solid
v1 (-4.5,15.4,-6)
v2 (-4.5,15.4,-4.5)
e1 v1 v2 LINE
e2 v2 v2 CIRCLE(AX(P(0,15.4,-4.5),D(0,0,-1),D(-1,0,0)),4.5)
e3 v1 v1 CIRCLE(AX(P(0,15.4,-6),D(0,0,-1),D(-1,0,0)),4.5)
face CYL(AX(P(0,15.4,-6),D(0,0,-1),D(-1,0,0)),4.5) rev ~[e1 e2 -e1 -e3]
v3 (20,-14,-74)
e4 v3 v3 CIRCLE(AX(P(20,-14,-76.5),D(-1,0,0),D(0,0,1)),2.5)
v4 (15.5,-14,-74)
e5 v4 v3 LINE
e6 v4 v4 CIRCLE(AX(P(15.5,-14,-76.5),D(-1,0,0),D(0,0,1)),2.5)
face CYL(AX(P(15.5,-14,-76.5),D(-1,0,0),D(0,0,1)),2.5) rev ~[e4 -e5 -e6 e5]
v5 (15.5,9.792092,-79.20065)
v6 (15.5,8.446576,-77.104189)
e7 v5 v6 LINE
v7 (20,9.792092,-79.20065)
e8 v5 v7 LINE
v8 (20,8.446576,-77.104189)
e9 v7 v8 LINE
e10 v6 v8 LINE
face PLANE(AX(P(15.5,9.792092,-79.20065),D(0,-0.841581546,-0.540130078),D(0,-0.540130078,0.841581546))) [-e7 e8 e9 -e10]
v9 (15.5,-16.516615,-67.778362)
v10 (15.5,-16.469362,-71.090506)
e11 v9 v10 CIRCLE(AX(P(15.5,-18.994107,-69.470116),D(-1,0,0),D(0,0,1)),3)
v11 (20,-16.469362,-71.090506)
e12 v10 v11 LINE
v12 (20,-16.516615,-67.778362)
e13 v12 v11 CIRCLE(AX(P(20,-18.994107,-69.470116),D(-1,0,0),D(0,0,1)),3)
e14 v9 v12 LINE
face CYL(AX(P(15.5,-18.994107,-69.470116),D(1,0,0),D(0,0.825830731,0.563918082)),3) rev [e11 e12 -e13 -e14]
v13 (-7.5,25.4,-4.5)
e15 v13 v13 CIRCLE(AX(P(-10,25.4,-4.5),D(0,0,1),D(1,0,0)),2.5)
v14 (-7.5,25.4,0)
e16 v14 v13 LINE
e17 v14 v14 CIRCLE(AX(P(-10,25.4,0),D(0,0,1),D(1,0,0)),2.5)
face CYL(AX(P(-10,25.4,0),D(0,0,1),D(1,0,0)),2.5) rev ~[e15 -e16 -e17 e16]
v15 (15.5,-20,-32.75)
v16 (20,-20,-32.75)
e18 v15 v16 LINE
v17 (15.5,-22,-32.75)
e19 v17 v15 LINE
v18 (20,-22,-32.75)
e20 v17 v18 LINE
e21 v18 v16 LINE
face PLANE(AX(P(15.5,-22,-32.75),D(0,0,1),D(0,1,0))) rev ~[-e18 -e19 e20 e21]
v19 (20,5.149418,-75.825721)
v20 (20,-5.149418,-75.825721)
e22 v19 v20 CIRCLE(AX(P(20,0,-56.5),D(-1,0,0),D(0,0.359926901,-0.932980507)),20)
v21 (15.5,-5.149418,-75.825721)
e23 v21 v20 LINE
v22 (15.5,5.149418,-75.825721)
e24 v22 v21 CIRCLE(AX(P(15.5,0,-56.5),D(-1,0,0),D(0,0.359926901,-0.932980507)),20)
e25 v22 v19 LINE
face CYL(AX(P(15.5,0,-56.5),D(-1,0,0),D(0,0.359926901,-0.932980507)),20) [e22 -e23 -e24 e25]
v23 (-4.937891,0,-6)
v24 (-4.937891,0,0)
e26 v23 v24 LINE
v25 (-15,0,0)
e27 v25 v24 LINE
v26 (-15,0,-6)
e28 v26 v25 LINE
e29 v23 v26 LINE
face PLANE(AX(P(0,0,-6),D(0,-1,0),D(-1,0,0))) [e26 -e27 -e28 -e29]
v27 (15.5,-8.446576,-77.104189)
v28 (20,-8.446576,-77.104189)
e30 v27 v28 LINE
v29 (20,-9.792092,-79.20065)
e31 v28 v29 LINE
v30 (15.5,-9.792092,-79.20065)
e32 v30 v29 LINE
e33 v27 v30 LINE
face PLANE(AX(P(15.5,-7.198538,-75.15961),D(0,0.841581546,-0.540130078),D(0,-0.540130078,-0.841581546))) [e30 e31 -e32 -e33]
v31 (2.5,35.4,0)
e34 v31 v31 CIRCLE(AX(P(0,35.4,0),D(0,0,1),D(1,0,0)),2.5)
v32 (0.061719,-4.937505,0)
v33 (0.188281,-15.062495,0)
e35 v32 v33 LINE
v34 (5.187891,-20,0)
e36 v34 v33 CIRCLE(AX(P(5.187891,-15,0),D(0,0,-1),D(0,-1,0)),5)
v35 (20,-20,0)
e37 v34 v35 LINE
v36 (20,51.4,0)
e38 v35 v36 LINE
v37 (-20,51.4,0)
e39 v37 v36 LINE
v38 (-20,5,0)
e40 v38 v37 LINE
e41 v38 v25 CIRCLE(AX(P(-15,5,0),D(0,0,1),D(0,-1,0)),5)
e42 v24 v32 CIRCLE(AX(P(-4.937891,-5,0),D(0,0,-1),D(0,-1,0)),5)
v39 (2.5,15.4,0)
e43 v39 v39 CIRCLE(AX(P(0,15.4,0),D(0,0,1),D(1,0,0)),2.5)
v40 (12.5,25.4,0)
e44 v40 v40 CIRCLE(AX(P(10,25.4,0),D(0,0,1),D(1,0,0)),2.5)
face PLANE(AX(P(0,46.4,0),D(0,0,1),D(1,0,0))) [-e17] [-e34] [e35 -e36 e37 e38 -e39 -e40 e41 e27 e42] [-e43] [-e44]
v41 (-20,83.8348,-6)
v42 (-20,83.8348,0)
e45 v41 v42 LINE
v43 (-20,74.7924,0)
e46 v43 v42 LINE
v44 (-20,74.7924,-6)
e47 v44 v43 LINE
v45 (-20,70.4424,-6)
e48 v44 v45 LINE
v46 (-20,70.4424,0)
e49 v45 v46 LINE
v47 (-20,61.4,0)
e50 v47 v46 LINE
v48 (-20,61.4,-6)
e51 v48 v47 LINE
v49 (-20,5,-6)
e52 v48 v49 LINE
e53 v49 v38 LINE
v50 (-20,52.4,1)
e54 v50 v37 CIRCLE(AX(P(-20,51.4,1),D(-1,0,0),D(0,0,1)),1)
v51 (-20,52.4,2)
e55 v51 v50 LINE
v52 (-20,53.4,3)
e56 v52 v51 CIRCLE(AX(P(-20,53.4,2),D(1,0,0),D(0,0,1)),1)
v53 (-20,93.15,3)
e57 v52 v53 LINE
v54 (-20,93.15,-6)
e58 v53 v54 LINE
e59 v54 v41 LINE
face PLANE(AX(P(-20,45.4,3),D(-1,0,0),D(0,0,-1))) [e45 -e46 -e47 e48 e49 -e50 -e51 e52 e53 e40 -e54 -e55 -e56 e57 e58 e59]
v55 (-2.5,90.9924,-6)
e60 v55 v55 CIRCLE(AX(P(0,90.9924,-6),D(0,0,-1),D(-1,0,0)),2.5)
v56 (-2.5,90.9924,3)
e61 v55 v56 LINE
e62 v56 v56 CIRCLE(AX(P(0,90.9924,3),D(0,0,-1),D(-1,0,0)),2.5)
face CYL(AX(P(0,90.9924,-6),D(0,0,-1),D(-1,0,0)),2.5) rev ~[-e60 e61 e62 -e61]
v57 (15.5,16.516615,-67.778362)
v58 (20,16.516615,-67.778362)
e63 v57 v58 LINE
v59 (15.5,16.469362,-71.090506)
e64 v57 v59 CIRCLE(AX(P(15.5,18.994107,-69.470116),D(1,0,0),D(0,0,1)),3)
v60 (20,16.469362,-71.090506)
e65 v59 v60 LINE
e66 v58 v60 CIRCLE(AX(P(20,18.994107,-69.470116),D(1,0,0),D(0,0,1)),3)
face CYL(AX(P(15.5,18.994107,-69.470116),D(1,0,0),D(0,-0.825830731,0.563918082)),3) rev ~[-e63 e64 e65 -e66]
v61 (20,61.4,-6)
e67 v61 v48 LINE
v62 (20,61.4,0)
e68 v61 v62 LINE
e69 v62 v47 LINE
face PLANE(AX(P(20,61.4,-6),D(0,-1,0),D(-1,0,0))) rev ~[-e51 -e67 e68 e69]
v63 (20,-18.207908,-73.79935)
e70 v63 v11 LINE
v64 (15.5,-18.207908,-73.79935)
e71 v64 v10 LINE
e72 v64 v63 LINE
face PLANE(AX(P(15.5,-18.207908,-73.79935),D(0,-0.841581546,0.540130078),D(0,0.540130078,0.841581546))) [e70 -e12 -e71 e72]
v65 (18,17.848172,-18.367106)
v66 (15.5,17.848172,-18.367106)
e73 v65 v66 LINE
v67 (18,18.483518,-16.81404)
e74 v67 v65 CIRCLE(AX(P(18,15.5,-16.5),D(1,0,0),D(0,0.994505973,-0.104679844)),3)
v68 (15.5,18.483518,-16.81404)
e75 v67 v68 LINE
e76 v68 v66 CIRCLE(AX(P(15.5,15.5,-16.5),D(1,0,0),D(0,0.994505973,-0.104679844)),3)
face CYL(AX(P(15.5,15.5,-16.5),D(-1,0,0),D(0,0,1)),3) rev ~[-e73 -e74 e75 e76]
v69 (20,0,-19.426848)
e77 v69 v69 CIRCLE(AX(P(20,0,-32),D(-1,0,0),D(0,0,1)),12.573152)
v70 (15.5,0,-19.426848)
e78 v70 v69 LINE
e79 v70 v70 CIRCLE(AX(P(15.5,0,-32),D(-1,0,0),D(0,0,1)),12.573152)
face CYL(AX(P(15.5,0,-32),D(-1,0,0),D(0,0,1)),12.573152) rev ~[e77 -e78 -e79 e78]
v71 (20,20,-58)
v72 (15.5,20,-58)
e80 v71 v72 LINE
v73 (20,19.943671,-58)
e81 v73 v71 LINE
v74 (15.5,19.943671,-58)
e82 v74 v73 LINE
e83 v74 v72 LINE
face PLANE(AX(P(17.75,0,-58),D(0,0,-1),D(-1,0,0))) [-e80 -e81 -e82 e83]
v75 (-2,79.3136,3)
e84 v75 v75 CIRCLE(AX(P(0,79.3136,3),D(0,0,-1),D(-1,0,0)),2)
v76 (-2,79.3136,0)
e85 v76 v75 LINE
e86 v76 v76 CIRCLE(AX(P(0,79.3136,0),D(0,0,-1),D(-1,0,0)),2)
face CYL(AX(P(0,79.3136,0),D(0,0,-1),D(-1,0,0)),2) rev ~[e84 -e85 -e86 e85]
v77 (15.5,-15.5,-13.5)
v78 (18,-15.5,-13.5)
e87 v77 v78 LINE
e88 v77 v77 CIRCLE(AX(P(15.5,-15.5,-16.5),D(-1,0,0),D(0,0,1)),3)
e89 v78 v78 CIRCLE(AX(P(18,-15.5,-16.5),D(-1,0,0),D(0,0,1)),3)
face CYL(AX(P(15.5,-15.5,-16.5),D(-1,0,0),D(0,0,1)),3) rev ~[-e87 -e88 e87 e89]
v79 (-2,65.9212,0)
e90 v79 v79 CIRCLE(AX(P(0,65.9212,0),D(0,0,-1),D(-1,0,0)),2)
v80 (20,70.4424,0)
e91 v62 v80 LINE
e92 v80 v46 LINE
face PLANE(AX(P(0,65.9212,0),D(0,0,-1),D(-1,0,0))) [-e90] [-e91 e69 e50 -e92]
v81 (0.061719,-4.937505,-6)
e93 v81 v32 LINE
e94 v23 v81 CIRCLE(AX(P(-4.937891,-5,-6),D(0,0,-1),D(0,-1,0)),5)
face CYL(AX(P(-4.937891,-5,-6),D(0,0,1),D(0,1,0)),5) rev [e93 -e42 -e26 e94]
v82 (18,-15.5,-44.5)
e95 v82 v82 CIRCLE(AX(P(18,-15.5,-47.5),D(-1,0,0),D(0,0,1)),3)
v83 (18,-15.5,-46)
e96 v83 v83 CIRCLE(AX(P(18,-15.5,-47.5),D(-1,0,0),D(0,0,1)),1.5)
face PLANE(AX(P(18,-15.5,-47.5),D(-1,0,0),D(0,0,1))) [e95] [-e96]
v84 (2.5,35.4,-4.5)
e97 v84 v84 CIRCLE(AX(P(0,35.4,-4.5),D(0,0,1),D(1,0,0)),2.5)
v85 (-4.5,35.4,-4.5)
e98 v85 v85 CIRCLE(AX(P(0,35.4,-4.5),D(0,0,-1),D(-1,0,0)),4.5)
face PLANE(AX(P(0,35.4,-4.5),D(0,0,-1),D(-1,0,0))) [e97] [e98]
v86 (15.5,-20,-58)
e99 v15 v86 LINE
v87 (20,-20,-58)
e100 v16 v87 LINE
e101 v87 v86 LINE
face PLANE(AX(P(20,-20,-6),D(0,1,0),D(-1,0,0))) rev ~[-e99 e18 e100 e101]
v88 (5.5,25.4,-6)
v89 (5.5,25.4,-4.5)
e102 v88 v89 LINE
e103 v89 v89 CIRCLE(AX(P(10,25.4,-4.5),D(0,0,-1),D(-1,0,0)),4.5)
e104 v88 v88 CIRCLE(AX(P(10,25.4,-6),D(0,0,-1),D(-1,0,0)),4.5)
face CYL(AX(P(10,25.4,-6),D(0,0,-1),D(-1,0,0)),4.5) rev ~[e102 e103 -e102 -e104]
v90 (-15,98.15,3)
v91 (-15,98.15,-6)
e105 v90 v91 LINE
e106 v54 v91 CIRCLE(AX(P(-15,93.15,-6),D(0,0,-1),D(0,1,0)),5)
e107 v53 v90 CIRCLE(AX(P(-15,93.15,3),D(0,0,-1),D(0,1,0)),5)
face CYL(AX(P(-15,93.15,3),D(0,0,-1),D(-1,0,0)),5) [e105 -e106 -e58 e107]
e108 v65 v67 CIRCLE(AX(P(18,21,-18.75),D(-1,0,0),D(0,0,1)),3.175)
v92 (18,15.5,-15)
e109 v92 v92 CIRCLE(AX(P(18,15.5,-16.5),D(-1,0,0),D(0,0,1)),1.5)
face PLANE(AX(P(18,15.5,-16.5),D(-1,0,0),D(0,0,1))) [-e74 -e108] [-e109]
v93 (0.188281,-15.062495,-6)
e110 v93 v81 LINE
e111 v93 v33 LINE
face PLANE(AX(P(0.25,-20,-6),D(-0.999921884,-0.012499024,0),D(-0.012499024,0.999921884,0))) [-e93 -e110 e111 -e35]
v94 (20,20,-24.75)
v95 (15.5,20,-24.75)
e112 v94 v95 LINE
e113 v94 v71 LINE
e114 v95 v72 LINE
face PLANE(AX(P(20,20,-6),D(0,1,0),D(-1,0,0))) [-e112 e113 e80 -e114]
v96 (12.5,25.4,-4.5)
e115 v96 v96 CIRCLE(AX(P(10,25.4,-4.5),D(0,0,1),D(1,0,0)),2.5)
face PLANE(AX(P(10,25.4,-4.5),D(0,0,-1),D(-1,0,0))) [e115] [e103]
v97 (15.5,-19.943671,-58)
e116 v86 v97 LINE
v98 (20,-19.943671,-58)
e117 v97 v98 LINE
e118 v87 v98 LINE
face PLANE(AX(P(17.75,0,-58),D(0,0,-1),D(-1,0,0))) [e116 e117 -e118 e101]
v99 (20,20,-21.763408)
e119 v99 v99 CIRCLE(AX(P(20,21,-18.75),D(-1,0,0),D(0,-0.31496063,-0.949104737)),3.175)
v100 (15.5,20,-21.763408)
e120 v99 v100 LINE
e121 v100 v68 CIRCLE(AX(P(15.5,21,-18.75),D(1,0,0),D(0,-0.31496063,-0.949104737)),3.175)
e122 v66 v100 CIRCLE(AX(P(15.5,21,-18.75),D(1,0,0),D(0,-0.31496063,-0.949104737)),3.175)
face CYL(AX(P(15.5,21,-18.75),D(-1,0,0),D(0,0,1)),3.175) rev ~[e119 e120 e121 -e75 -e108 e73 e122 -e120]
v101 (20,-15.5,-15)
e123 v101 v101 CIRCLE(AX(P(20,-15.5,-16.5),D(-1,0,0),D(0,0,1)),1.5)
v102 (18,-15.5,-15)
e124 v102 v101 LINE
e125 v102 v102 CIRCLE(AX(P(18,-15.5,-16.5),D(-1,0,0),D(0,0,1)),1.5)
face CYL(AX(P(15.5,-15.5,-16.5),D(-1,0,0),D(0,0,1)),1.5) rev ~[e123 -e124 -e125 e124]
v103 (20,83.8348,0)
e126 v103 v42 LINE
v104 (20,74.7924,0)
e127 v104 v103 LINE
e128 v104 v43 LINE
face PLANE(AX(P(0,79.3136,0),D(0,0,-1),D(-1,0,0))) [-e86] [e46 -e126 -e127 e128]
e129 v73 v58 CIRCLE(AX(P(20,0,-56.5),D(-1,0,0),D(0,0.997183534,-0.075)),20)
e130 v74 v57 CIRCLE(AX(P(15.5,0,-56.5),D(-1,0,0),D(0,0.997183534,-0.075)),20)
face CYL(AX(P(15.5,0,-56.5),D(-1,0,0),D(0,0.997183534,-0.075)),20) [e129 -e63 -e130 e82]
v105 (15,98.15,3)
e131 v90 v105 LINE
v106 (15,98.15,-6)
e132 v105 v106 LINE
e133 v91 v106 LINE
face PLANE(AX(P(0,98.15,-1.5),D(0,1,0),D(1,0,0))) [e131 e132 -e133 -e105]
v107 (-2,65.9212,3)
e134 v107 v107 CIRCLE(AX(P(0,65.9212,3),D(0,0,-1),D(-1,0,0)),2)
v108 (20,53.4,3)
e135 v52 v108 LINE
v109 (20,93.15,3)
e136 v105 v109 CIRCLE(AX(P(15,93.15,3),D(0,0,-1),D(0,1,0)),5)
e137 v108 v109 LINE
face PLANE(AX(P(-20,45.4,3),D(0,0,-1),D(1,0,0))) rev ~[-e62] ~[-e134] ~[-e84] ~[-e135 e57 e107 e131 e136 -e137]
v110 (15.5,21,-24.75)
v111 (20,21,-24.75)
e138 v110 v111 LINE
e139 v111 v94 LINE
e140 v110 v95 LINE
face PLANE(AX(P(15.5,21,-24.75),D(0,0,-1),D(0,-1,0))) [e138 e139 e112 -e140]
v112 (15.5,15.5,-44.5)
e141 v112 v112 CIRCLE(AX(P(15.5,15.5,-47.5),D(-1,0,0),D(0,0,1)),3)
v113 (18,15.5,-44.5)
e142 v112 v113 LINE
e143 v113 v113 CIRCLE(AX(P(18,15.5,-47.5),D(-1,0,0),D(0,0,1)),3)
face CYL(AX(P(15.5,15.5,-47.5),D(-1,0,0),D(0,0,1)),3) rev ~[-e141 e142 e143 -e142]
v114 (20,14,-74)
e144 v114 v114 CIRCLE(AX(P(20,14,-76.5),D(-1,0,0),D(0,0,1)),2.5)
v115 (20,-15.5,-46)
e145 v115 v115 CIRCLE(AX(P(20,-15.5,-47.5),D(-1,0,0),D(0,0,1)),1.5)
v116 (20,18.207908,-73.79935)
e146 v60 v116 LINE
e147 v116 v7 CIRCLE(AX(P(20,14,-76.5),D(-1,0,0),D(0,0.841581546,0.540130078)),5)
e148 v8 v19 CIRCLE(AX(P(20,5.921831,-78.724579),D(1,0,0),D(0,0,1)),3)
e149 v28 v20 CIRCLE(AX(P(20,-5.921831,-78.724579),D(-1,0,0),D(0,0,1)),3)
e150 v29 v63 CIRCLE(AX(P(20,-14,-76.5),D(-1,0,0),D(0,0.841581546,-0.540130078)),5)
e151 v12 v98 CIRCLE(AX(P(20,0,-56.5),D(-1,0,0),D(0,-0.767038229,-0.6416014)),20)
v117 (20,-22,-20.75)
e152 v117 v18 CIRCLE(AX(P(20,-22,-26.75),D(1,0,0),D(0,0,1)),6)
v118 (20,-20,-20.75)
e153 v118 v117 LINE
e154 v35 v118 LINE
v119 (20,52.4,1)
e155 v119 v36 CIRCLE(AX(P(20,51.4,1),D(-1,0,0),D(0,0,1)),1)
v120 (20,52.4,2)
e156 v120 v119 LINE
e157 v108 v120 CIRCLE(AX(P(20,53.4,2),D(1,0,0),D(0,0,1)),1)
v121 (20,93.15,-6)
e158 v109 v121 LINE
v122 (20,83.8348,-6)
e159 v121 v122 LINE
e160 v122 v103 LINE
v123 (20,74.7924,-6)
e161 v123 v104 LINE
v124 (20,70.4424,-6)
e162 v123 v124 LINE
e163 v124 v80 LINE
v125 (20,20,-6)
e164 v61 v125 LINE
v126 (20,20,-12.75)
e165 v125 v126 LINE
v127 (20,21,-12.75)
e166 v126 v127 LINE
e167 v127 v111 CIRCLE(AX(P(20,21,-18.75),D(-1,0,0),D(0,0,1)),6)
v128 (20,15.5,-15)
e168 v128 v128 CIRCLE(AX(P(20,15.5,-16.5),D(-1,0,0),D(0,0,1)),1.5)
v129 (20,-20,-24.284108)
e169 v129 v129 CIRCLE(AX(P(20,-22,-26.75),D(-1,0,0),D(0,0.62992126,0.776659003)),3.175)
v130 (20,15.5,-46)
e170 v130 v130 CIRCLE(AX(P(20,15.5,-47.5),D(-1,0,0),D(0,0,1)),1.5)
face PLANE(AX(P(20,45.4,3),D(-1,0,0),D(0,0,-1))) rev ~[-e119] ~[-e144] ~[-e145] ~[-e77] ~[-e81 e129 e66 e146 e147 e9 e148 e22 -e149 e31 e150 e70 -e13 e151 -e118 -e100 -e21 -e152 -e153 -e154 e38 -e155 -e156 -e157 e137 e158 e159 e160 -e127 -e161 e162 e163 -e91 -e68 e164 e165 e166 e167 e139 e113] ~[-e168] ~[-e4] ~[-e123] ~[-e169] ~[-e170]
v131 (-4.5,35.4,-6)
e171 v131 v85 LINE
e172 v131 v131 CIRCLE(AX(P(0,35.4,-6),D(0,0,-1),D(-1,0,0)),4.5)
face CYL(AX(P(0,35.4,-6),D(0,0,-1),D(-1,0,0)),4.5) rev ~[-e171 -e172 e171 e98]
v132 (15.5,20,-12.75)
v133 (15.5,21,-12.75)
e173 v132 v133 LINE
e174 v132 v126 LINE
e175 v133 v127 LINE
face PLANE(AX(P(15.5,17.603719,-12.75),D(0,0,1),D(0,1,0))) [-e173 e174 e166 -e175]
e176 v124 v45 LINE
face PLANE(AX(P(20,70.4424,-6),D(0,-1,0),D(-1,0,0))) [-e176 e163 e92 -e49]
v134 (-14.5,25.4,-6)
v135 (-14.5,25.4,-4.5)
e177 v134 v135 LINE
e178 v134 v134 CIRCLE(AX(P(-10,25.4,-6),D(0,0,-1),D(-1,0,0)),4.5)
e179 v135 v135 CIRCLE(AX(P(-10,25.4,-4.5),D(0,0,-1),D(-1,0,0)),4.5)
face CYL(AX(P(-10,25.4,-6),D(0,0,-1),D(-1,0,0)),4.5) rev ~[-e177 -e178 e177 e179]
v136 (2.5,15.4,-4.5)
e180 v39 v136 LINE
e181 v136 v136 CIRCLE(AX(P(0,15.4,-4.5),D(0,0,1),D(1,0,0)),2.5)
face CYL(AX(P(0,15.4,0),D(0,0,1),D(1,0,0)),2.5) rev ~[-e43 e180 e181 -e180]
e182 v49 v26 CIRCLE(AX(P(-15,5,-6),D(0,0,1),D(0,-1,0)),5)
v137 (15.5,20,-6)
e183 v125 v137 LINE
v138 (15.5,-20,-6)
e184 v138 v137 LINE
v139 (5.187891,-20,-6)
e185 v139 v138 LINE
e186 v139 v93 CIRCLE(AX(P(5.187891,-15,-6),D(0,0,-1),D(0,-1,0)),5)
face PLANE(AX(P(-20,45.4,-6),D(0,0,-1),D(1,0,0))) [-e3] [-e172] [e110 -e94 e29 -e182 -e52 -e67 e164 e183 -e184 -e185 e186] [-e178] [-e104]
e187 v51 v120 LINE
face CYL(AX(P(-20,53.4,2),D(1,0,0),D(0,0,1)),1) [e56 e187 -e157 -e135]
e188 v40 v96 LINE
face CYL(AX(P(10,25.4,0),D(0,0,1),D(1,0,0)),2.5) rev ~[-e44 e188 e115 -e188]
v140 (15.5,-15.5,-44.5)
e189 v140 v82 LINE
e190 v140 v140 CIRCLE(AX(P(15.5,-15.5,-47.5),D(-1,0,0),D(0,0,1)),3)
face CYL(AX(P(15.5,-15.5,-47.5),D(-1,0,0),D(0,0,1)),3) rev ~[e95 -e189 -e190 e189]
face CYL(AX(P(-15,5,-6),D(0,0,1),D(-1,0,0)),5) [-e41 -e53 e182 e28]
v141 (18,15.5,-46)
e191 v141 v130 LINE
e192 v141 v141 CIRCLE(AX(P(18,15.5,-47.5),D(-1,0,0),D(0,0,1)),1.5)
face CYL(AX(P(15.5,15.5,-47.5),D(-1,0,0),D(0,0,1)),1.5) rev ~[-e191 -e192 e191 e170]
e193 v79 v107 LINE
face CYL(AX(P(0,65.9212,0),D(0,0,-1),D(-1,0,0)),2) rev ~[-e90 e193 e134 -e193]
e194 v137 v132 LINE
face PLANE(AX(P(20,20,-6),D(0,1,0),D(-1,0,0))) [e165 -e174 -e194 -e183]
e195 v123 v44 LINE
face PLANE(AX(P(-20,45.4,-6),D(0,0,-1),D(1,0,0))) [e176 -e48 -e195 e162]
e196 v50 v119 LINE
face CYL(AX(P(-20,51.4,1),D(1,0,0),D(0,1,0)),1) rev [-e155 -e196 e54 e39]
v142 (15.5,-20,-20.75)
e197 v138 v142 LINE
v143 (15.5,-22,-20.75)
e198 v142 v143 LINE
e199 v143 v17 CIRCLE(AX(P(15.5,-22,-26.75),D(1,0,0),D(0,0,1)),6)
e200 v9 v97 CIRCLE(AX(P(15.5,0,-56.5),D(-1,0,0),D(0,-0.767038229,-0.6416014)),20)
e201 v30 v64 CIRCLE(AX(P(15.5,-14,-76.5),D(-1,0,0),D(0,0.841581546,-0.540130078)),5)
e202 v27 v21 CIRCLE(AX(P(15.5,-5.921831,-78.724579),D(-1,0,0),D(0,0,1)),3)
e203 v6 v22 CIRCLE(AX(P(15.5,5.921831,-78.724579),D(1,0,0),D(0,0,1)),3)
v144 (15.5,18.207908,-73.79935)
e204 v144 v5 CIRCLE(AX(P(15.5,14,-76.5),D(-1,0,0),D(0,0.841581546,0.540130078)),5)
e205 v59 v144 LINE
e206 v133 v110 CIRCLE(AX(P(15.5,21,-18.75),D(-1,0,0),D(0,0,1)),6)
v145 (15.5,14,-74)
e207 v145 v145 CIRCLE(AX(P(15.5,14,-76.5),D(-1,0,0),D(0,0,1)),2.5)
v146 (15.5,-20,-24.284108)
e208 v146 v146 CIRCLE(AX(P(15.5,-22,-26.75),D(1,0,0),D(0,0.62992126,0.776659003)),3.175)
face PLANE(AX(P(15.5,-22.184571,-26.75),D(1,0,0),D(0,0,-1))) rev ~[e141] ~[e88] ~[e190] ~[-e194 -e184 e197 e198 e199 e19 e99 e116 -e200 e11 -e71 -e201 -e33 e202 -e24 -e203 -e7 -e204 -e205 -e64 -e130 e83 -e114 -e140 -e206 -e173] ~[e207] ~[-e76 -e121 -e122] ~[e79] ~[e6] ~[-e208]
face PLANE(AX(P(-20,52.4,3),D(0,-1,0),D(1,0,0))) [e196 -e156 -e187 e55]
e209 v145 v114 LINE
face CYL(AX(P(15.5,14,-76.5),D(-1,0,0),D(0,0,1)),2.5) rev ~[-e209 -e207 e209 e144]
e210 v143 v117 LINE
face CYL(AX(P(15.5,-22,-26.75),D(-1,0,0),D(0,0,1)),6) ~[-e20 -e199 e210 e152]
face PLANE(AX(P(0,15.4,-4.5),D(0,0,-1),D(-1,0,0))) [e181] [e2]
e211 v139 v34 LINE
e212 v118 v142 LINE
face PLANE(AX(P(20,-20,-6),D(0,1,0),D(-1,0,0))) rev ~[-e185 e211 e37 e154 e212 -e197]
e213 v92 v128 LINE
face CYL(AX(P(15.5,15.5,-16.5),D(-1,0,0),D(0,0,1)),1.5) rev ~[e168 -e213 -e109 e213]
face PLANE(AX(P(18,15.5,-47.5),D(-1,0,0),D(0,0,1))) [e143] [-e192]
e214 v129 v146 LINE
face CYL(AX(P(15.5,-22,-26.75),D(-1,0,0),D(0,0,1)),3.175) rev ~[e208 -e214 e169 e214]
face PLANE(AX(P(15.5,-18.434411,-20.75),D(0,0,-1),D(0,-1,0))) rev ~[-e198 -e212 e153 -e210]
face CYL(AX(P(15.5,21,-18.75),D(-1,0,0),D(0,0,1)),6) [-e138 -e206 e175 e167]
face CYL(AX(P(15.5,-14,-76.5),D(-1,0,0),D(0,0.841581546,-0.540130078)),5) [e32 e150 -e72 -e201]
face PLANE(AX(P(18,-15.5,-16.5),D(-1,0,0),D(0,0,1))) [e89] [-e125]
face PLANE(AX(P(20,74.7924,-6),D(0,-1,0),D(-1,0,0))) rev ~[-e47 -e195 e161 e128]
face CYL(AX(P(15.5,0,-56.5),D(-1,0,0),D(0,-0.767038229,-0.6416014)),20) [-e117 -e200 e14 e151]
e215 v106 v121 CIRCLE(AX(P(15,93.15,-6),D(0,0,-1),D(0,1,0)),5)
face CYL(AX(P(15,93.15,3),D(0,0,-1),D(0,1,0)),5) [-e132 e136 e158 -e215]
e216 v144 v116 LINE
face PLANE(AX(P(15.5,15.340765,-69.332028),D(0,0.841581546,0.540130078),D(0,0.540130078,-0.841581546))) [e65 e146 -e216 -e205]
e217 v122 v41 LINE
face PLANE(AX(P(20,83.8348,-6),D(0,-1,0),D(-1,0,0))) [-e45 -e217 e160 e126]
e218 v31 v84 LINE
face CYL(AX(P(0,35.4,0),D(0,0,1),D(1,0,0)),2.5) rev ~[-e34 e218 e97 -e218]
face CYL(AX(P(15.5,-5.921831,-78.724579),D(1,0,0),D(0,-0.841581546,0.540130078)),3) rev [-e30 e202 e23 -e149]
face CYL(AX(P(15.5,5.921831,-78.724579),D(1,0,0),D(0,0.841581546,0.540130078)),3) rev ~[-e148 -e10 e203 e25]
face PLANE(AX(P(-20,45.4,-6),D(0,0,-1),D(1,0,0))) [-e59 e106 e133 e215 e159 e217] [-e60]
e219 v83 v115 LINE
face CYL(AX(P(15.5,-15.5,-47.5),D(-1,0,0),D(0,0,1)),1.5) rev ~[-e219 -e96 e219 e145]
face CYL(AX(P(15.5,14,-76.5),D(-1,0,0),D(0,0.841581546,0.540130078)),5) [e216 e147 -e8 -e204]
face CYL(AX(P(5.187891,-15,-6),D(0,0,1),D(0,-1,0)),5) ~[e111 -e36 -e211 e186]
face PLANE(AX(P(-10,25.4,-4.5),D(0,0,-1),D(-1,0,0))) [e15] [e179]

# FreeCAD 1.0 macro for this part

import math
import FreeCAD as App
import Part
import Sketcher

V = App.Vector


def edges_at(feature, points):
    """Names of the edges that pass closest to the given points."""
    edges = feature.Shape.Edges
    near = lambda p: min(range(len(edges)), key=lambda i: edges[i].distToShape(Part.Vertex(*p))[0])
    return sorted({f"Edge{near(p) + 1}" for p in points})


def add_polygon(sketch, points):
    """Adds a closed chain of lines whose ends are joined by coincident constraints."""
    first, n = sketch.GeometryCount, len(points)
    for a, b in zip(points, points[1:] + points[:1]):
        sketch.addGeometry(Part.LineSegment(App.Vector(*a, 0), App.Vector(*b, 0)), False)
    for i in range(n):
        sketch.addConstraint(Sketcher.Constraint("Coincident", first + i, 2, first + (i + 1) % n, 1))

doc = App.newDocument("Part")
body = doc.addObject("PartDesign::Body", "Body")

sketch1 = body.newObject("Sketcher::SketchObject", "Sketch")
sketch1.AttachmentSupport = (doc.getObject("XY_Plane"), [""])
sketch1.MapMode = "FlatFace"
add_polygon(sketch1, [(-20, 45.4), (-20, -20), (20, -20), (20, 45.4)])
sketch1.addGeometry(Part.Circle(V(-10, 25.4, 0), V(0, 0, 1), 2.5), False)
sketch1.addGeometry(Part.Circle(V(0, 15.4, 0), V(0, 0, 1), 2.5), False)
sketch1.addGeometry(Part.Circle(V(10, 25.4, 0), V(0, 0, 1), 2.5), False)
sketch1.addGeometry(Part.Circle(V(0, 35.4, 0), V(0, 0, 1), 2.5), False)
sketch1.addConstraint([
    Sketcher.Constraint("Vertical", 0),
    Sketcher.Constraint("Horizontal", 1),
    Sketcher.Constraint("Vertical", 2),
    Sketcher.Constraint("Horizontal", 3),
    Sketcher.Constraint("Equal", 4, 5),
    Sketcher.Constraint("Equal", 5, 6),
    Sketcher.Constraint("Equal", 6, 7),
    Sketcher.Constraint("Symmetric", 4, 3, 6, 3, -2),
    Sketcher.Constraint("PointOnObject", 5, 3, -2),
    Sketcher.Constraint("PointOnObject", 7, 3, -2),
    Sketcher.Constraint("Diameter", 4, 5.0),
    Sketcher.Constraint("DistanceX", 1, 1, 1, 2, 40.0),
    Sketcher.Constraint("DistanceY", 0, 2, 0, 1, 65.4),
    Sketcher.Constraint("DistanceX", 4, 3, -1, 1, 10.0),
    Sketcher.Constraint("DistanceX", 0, 2, -1, 1, 20.0),
    Sketcher.Constraint("DistanceY", 0, 2, -1, 1, 20.0),
    Sketcher.Constraint("DistanceY", 5, 3, 4, 3, 10.0),
    Sketcher.Constraint("DistanceY", 4, 3, 7, 3, 10.0),
    Sketcher.Constraint("DistanceY", 6, 3, 2, 2, 20.0),
])
pad1 = body.newObject("PartDesign::Pad", "Pad")
pad1.Profile = sketch1
pad1.Length = 6
pad1.Reversed = True

sketch2 = body.newObject("Sketcher::SketchObject", "Sketch001")
sketch2.AttachmentSupport = (doc.getObject("XY_Plane"), [""])
sketch2.MapMode = "FlatFace"
sketch2.AttachmentOffset = App.Placement(V(0, 0, -6), App.Rotation())
add_polygon(sketch2, [(20, 20), (20, -20), (15.5, -20), (15.5, 20)])
sketch2.addConstraint([
    Sketcher.Constraint("Vertical", 0),
    Sketcher.Constraint("Horizontal", 1),
    Sketcher.Constraint("Vertical", 2),
    Sketcher.Constraint("Horizontal", 3),
    Sketcher.Constraint("DistanceY", 0, 2, 0, 1, 40.0),
    Sketcher.Constraint("DistanceX", 1, 2, 1, 1, 4.5),
    Sketcher.Constraint("DistanceX", -1, 1, 0, 2, 20.0),
    Sketcher.Constraint("DistanceY", 0, 2, -1, 1, 20.0),
])
pad2 = body.newObject("PartDesign::Pad", "Pad001")
pad2.Profile = sketch2
pad2.Length = 52
pad2.Reversed = True

sketch3 = body.newObject("Sketcher::SketchObject", "Sketch002")
sketch3.AttachmentSupport = (doc.getObject("YZ_Plane"), [""])
sketch3.MapMode = "FlatFace"
sketch3.AttachmentOffset = App.Placement(V(0, 0, 15.5), App.Rotation())
sketch3.addGeometry(Part.Circle(V(0, -32, 0), V(0, 0, 1), 13), False)
sketch3.addConstraint([
    Sketcher.Constraint("PointOnObject", 0, 3, -2),
    Sketcher.Constraint("DistanceY", 0, 3, -1, 1, 32.0),
    Sketcher.Constraint("Diameter", 0, 25.146303),
])
pocket1 = body.newObject("PartDesign::Pocket", "Pocket")
pocket1.Profile = sketch3
pocket1.Type = "UpToFirst"
pocket1.Reversed = True

sketch4 = body.newObject("Sketcher::SketchObject", "Sketch003")
sketch4.AttachmentSupport = (doc.getObject("YZ_Plane"), [""])
sketch4.MapMode = "FlatFace"
sketch4.AttachmentOffset = App.Placement(V(0, 0, 15.5), App.Rotation())
sketch4.addGeometry(Part.Circle(V(15.5, -16.5, 0), V(0, 0, 1), 1.5), False)
sketch4.addConstraint([
    Sketcher.Constraint("Diameter", 0, 3.0),
    Sketcher.Constraint("DistanceX", -1, 1, 0, 3, 15.5),
    Sketcher.Constraint("DistanceY", 0, 3, -1, 1, 16.5),
])
pocket2 = body.newObject("PartDesign::Pocket", "Pocket001")
pocket2.Profile = sketch4
pocket2.Type = "UpToFirst"
pocket2.Reversed = True

sketch5 = body.newObject("Sketcher::SketchObject", "Sketch004")
sketch5.AttachmentSupport = (doc.getObject("YZ_Plane"), [""])
sketch5.MapMode = "FlatFace"
sketch5.AttachmentOffset = App.Placement(V(0, 0, 15.5), App.Rotation())
sketch5.addGeometry(Part.Circle(V(-15.5, -16.5, 0), V(0, 0, 1), 1.5), False)
sketch5.addConstraint([
    Sketcher.Constraint("Diameter", 0, 3.0),
    Sketcher.Constraint("DistanceX", 0, 3, -1, 1, 15.5),
    Sketcher.Constraint("DistanceY", 0, 3, -1, 1, 16.5),
])
pocket3 = body.newObject("PartDesign::Pocket", "Pocket002")
pocket3.Profile = sketch5
pocket3.Type = "UpToFirst"
pocket3.Reversed = True

sketch6 = body.newObject("Sketcher::SketchObject", "Sketch005")
sketch6.AttachmentSupport = (doc.getObject("YZ_Plane"), [""])
sketch6.MapMode = "FlatFace"
sketch6.AttachmentOffset = App.Placement(V(0, 0, 15.5), App.Rotation())
sketch6.addGeometry(Part.Circle(V(-15.5, -47.5, 0), V(0, 0, 1), 1.5), False)
sketch6.addConstraint([
    Sketcher.Constraint("Diameter", 0, 3.0),
    Sketcher.Constraint("DistanceX", 0, 3, -1, 1, 15.5),
    Sketcher.Constraint("DistanceY", 0, 3, -1, 1, 47.5),
])
pocket4 = body.newObject("PartDesign::Pocket", "Pocket003")
pocket4.Profile = sketch6
pocket4.Type = "UpToFirst"
pocket4.Reversed = True

sketch7 = body.newObject("Sketcher::SketchObject", "Sketch006")
sketch7.AttachmentSupport = (doc.getObject("YZ_Plane"), [""])
sketch7.MapMode = "FlatFace"
sketch7.AttachmentOffset = App.Placement(V(0, 0, 15.5), App.Rotation())
sketch7.addGeometry(Part.Circle(V(15.5, -47.5, 0), V(0, 0, 1), 1.5), False)
sketch7.addConstraint([
    Sketcher.Constraint("Diameter", 0, 3.0),
    Sketcher.Constraint("DistanceX", -1, 1, 0, 3, 15.5),
    Sketcher.Constraint("DistanceY", 0, 3, -1, 1, 47.5),
])
pocket5 = body.newObject("PartDesign::Pocket", "Pocket004")
pocket5.Profile = sketch7
pocket5.Type = "UpToFirst"
pocket5.Reversed = True

sketch8 = body.newObject("Sketcher::SketchObject", "Sketch007")
sketch8.AttachmentSupport = (doc.getObject("XY_Plane"), [""])
sketch8.MapMode = "FlatFace"
sketch8.AttachmentOffset = App.Placement(V(0, 0, -6), App.Rotation())
sketch8.addGeometry([
    Part.Circle(V(0, 35.4, 0), V(0, 0, 1), 4.5),
    Part.Circle(V(-10, 25.4, 0), V(0, 0, 1), 4.5),
    Part.Circle(V(0, 15.4, 0), V(0, 0, 1), 4.5),
    Part.Circle(V(10, 25.4, 0), V(0, 0, 1), 4.5),
], False)
sketch8.addConstraint([
    Sketcher.Constraint("Equal", 0, 1),
    Sketcher.Constraint("Equal", 1, 2),
    Sketcher.Constraint("Equal", 2, 3),
    Sketcher.Constraint("Symmetric", 1, 3, 3, 3, -2),
    Sketcher.Constraint("PointOnObject", 0, 3, -2),
    Sketcher.Constraint("PointOnObject", 2, 3, -2),
    Sketcher.Constraint("Diameter", 0, 9.0),
    Sketcher.Constraint("DistanceX", 1, 3, -1, 1, 10.0),
    Sketcher.Constraint("DistanceY", 1, 3, 0, 3, 10.0),
    Sketcher.Constraint("DistanceY", 2, 3, 1, 3, 10.0),
    Sketcher.Constraint("DistanceY", -1, 1, 0, 3, 35.4),
])
pocket6 = body.newObject("PartDesign::Pocket", "Pocket005")
pocket6.Profile = sketch8
pocket6.Length = 1.5
pocket6.Reversed = True

sketch9 = body.newObject("Sketcher::SketchObject", "Sketch008")
sketch9.AttachmentSupport = (doc.getObject("YZ_Plane"), [""])
sketch9.MapMode = "FlatFace"
sketch9.AttachmentOffset = App.Placement(V(0, 0, 15.5), App.Rotation())
sketch9.addGeometry([
    Part.Circle(V(15.5, -16.5, 0), V(0, 0, 1), 3),
    Part.Circle(V(15.5, -47.5, 0), V(0, 0, 1), 3),
    Part.Circle(V(-15.5, -47.5, 0), V(0, 0, 1), 3),
    Part.Circle(V(-15.5, -16.5, 0), V(0, 0, 1), 3),
], False)
sketch9.addConstraint([
    Sketcher.Constraint("Equal", 0, 1),
    Sketcher.Constraint("Equal", 1, 2),
    Sketcher.Constraint("Equal", 2, 3),
    Sketcher.Constraint("Symmetric", 1, 3, 2, 3, -2),
    Sketcher.Constraint("Symmetric", 0, 3, 3, 3, -2),
    Sketcher.Constraint("Vertical", 0, 3, 1, 3),
    Sketcher.Constraint("Diameter", 0, 6.0),
    Sketcher.Constraint("DistanceY", 1, 3, 0, 3, 31.0),
    Sketcher.Constraint("DistanceX", 2, 3, 1, 3, 31.0),
    Sketcher.Constraint("DistanceY", 0, 3, -1, 1, 16.5),
])
pocket7 = body.newObject("PartDesign::Pocket", "Pocket006")
pocket7.Profile = sketch9
pocket7.Length = 2.5
pocket7.Reversed = True
doc.recompute()

fillet = body.newObject("PartDesign::Fillet", "Fillet")
fillet.Base = (pocket7, edges_at(pocket7, [(-20, -20, -3)]))
fillet.Radius = 5

sketch10 = body.newObject("Sketcher::SketchObject", "Sketch009")
sketch10.AttachmentSupport = (doc.getObject("YZ_Plane"), [""])
sketch10.MapMode = "FlatFace"
sketch10.AttachmentOffset = App.Placement(V(0, 0, 15.5), App.Rotation())
sketch10.addGeometry([
    Part.LineSegment(V(-19.9, -58, 0), V(19.9, -58, 0)),
    Part.ArcOfCircle(Part.Circle(V(0, -56.5, 0), V(0, 0, 1), 20), math.radians(-40), math.radians(-4)),
    Part.LineSegment(V(15.3, -69.3, 0), V(18.2, -73.8, 0)),
    Part.ArcOfCircle(Part.Circle(V(14, -76.5, 0), V(0, 0, 1), 5), math.radians(-147), math.radians(33)),
    Part.LineSegment(V(9.8, -79.2, 0), V(7.2, -75.2, 0)),
    Part.ArcOfCircle(Part.Circle(V(0, -56.5, 0), V(0, 0, 1), 20), math.radians(-111), math.radians(-69)),
    Part.LineSegment(V(-7.2, -75.2, 0), V(-9.8, -79.2, 0)),
    Part.ArcOfCircle(Part.Circle(V(-14, -76.5, 0), V(0, 0, 1), 5), math.radians(147), math.radians(327)),
    Part.LineSegment(V(-18.2, -73.8, 0), V(-15.3, -69.3, 0)),
    Part.ArcOfCircle(Part.Circle(V(0, -56.5, 0), V(0, 0, 1), 20), math.radians(-176), math.radians(-140)),
    Part.Circle(V(-14, -76.5, 0), V(0, 0, 1), 2.5),
    Part.Circle(V(14, -76.5, 0), V(0, 0, 1), 2.5),
], False)
sketch10.addConstraint([
    Sketcher.Constraint("Coincident", 0, 2, 1, 2),
    Sketcher.Constraint("Coincident", 1, 1, 2, 1),
    Sketcher.Constraint("Tangent", 2, 2, 3, 2),
    Sketcher.Constraint("Tangent", 3, 1, 4, 1),
    Sketcher.Constraint("Coincident", 4, 2, 5, 2),
    Sketcher.Constraint("Coincident", 5, 1, 6, 1),
    Sketcher.Constraint("Tangent", 6, 2, 7, 2),
    Sketcher.Constraint("Tangent", 7, 1, 8, 1),
    Sketcher.Constraint("Coincident", 8, 2, 9, 2),
    Sketcher.Constraint("Coincident", 9, 1, 0, 1),
    Sketcher.Constraint("Horizontal", 0),
    Sketcher.Constraint("Coincident", 5, 3, 1, 3),
    Sketcher.Constraint("Coincident", 9, 3, 1, 3),
    Sketcher.Constraint("Coincident", 10, 3, 7, 3),
    Sketcher.Constraint("Coincident", 11, 3, 3, 3),
    Sketcher.Constraint("Equal", 1, 5),
    Sketcher.Constraint("Equal", 3, 7),
    Sketcher.Constraint("Equal", 5, 9),
    Sketcher.Constraint("Equal", 10, 11),
    Sketcher.Constraint("Symmetric", 3, 3, 7, 3, -2),
    Sketcher.Constraint("Symmetric", 4, 2, 5, 1, -2),
    Sketcher.Constraint("Parallel", 2, 4),
    Sketcher.Constraint("Parallel", 6, 8),
    Sketcher.Constraint("Diameter", 10, 5.0),
    Sketcher.Constraint("Radius", 1, 20.0),
    Sketcher.Constraint("Radius", 3, 5.0),
    Sketcher.Constraint("DistanceX", -1, 1, 3, 3, 14.0),
    Sketcher.Constraint("DistanceY", 0, 2, -1, 1, 58.0),
    Sketcher.Constraint("DistanceY", 3, 3, 1, 3, 20.0),
    Sketcher.Constraint("DistanceY", 1, 3, -1, 1, 56.5),
    Sketcher.Constraint("DistanceY", 3, 1, 2, 2, 5.401301),
])
pad3 = body.newObject("PartDesign::Pad", "Pad002")
pad3.Profile = sketch10
pad3.Length = 4.5
doc.recompute()

fillet2 = body.newObject("PartDesign::Fillet", "Fillet001")
fillet2.Base = (pad3, edges_at(pad3, [
    (17.75, -15.341, -69.332),
    (17.75, -7.199, -75.16),
    (17.75, 7.199, -75.16),
    (17.75, 15.341, -69.332),
]))
fillet2.Radius = 3

sketch11 = body.newObject("Sketcher::SketchObject", "Sketch010")
sketch11.AttachmentSupport = (doc.getObject("YZ_Plane"), [""])
sketch11.MapMode = "FlatFace"
sketch11.AttachmentOffset = App.Placement(V(0, 0, 15.5), App.Rotation())
sketch11.addGeometry([
    Part.LineSegment(V(-18.4, -32.8, 0), V(-22, -32.8, 0)),
    Part.ArcOfCircle(Part.Circle(V(-22, -26.8, 0), V(0, 0, 1), 6), math.radians(90), math.radians(270)),
    Part.LineSegment(V(-22, -20.8, 0), V(-18.4, -20.8, 0)),
    Part.LineSegment(V(-18.4, -20.8, 0), V(-18.4, -32.8, 0)),
    Part.Circle(V(-22, -26.8, 0), V(0, 0, 1), 3.2),
    Part.LineSegment(V(21, -24.8, 0), V(17.6, -24.8, 0)),
    Part.LineSegment(V(17.6, -24.8, 0), V(17.6, -12.8, 0)),
    Part.LineSegment(V(17.6, -12.8, 0), V(21, -12.8, 0)),
    Part.ArcOfCircle(Part.Circle(V(21, -18.8, 0), V(0, 0, 1), 6), math.radians(-90), math.radians(90)),
    Part.Circle(V(21, -18.8, 0), V(0, 0, 1), 3.2),
], False)
sketch11.addConstraint([
    Sketcher.Constraint("Tangent", 0, 2, 1, 2),
    Sketcher.Constraint("Tangent", 1, 1, 2, 1),
    Sketcher.Constraint("Coincident", 2, 2, 3, 1),
    Sketcher.Constraint("Coincident", 3, 2, 0, 1),
    Sketcher.Constraint("Coincident", 5, 2, 6, 1),
    Sketcher.Constraint("Coincident", 6, 2, 7, 1),
    Sketcher.Constraint("Tangent", 7, 2, 8, 2),
    Sketcher.Constraint("Tangent", 8, 1, 5, 1),
    Sketcher.Constraint("Horizontal", 0),
    Sketcher.Constraint("Horizontal", 2),
    Sketcher.Constraint("Vertical", 3),
    Sketcher.Constraint("Horizontal", 5),
    Sketcher.Constraint("Vertical", 6),
    Sketcher.Constraint("Horizontal", 7),
    Sketcher.Constraint("Coincident", 4, 3, 1, 3),
    Sketcher.Constraint("Coincident", 9, 3, 8, 3),
    Sketcher.Constraint("Equal", 1, 8),
    Sketcher.Constraint("Equal", 4, 9),
    Sketcher.Constraint("Radius", 1, 6.0),
    Sketcher.Constraint("Diameter", 4, 6.35),
    Sketcher.Constraint("DistanceX", 1, 3, -1, 1, 22.0),
    Sketcher.Constraint("DistanceX", -1, 1, 8, 3, 21.0),
    Sketcher.Constraint("DistanceY", 1, 3, 8, 3, 8.0),
    Sketcher.Constraint("DistanceY", 1, 3, -1, 1, 26.75),
    Sketcher.Constraint("DistanceX", 0, 2, 0, 1, 3.565589),
    Sketcher.Constraint("DistanceX", 5, 2, 5, 1, 3.396281),
])
pad4 = body.newObject("PartDesign::Pad", "Pad003")
pad4.Profile = sketch11
pad4.Length = 4.5

sketch12 = body.newObject("Sketcher::SketchObject", "Sketch011")
sketch12.AttachmentSupport = (doc.getObject("YZ_Plane"), [""])
sketch12.MapMode = "FlatFace"
sketch12.AttachmentOffset = App.Placement(V(0, 0, 15.5), App.Rotation())
sketch12.addGeometry([
    Part.Circle(V(21, -18.8, 0), V(0, 0, 1), 3.2),
    Part.Circle(V(-22, -26.8, 0), V(0, 0, 1), 3.2),
], False)
sketch12.addConstraint([
    Sketcher.Constraint("Equal", 0, 1),
    Sketcher.Constraint("Diameter", 0, 6.35),
    Sketcher.Constraint("DistanceX", -1, 1, 0, 3, 21.0),
    Sketcher.Constraint("DistanceX", 1, 3, -1, 1, 22.0),
    Sketcher.Constraint("DistanceY", 1, 3, 0, 3, 8.0),
    Sketcher.Constraint("DistanceY", 0, 3, -1, 1, 18.75),
])
pocket8 = body.newObject("PartDesign::Pocket", "Pocket007")
pocket8.Profile = sketch12
pocket8.Length = 4.5
pocket8.Reversed = True

sketch13 = body.newObject("Sketcher::SketchObject", "Sketch012")
sketch13.AttachmentSupport = (doc.getObject("YZ_Plane"), [""])
sketch13.MapMode = "FlatFace"
sketch13.AttachmentOffset = App.Placement(V(0, 0, 15.5), App.Rotation())
sketch13.addGeometry(Part.Circle(V(15.5, -16.5, 0), V(0, 0, 1), 3), False)
sketch13.addConstraint([
    Sketcher.Constraint("Diameter", 0, 6.0),
    Sketcher.Constraint("DistanceX", -1, 1, 0, 3, 15.5),
    Sketcher.Constraint("DistanceY", 0, 3, -1, 1, 16.5),
])
pocket9 = body.newObject("PartDesign::Pocket", "Pocket008")
pocket9.Profile = sketch13
pocket9.Length = 2.5
pocket9.Reversed = True

sketch14 = body.newObject("Sketcher::SketchObject", "Sketch013")
sketch14.AttachmentSupport = (doc.getObject("XZ_Plane"), [""])
sketch14.MapMode = "FlatFace"
sketch14.AttachmentOffset = App.Placement(V(0, 0, -45.4), App.Rotation())
add_polygon(sketch14, [(-20, -6), (-20, 3), (20, 3), (20, -6)])
sketch14.addConstraint([
    Sketcher.Constraint("Vertical", 0),
    Sketcher.Constraint("Horizontal", 1),
    Sketcher.Constraint("Vertical", 2),
    Sketcher.Constraint("Horizontal", 3),
    Sketcher.Constraint("DistanceX", 1, 1, 1, 2, 40.0),
    Sketcher.Constraint("DistanceY", 0, 1, 0, 2, 9.0),
    Sketcher.Constraint("DistanceX", 0, 2, -1, 1, 20.0),
    Sketcher.Constraint("DistanceY", -1, 1, 0, 2, 3.0),
])
pad5 = body.newObject("PartDesign::Pad", "Pad004")
pad5.Profile = sketch14
pad5.Length = 52.75
pad5.Reversed = True

sketch15 = body.newObject("Sketcher::SketchObject", "Sketch014")
sketch15.AttachmentSupport = (doc.getObject("XY_Plane"), [""])
sketch15.MapMode = "FlatFace"
sketch15.AttachmentOffset = App.Placement(V(0, 0, 3), App.Rotation())
add_polygon(sketch15, [(-20, 47.4), (-20, 45.4), (20, 45.4), (20, 47.4)])
sketch15.addConstraint([
    Sketcher.Constraint("Vertical", 0),
    Sketcher.Constraint("Horizontal", 1),
    Sketcher.Constraint("Vertical", 2),
    Sketcher.Constraint("Horizontal", 3),
    Sketcher.Constraint("DistanceX", 1, 1, 1, 2, 40.0),
    Sketcher.Constraint("DistanceY", 0, 2, 0, 1, 2.0),
    Sketcher.Constraint("DistanceX", 0, 2, -1, 1, 20.0),
    Sketcher.Constraint("DistanceY", -1, 1, 0, 2, 45.4),
])
pocket10 = body.newObject("PartDesign::Pocket", "Pocket009")
pocket10.Profile = sketch15
pocket10.Length = 3

sketch16 = body.newObject("Sketcher::SketchObject", "Sketch015")
sketch16.AttachmentSupport = (doc.getObject("XY_Plane"), [""])
sketch16.MapMode = "FlatFace"
sketch16.AttachmentOffset = App.Placement(V(0, 0, 3), App.Rotation())
add_polygon(sketch16, [(-20, 52), (-20, 47), (20, 47), (20, 52)])
sketch16.addConstraint([
    Sketcher.Constraint("Vertical", 0),
    Sketcher.Constraint("Horizontal", 1),
    Sketcher.Constraint("Vertical", 2),
    Sketcher.Constraint("Horizontal", 3),
    Sketcher.Constraint("DistanceX", 1, 1, 1, 2, 40.0),
    Sketcher.Constraint("DistanceY", 0, 2, 0, 1, 5.0),
    Sketcher.Constraint("DistanceX", 0, 2, -1, 1, 20.0),
    Sketcher.Constraint("DistanceY", -1, 1, 0, 2, 47.4),
])
pocket11 = body.newObject("PartDesign::Pocket", "Pocket010")
pocket11.Profile = sketch16
pocket11.Length = 3
doc.recompute()

fillet3 = body.newObject("PartDesign::Fillet", "Fillet002")
fillet3.Base = (pocket11, edges_at(pocket11, [(0, 52.4, 3), (0, 52.4, 0)]))
fillet3.Radius = 1
doc.recompute()

fillet4 = body.newObject("PartDesign::Fillet", "Fillet003")
fillet4.Base = (fillet3, edges_at(fillet3, [(20, 98.15, -1.5), (-20, 98.15, -1.5)]))
fillet4.Radius = 5

sketch17 = body.newObject("Sketcher::SketchObject", "Sketch016")
sketch17.AttachmentSupport = (doc.getObject("XY_Plane"), [""])
sketch17.MapMode = "FlatFace"
sketch17.AttachmentOffset = App.Placement(V(0, 0, -6), App.Rotation())
add_polygon(sketch17, [(20, 70), (20, 61), (-20, 61), (-20, 70)])
add_polygon(sketch17, [(20, 84), (20, 75), (-20, 75), (-20, 84)])
sketch17.addConstraint([
    Sketcher.Constraint("Vertical", 0),
    Sketcher.Constraint("Horizontal", 1),
    Sketcher.Constraint("Vertical", 2),
    Sketcher.Constraint("Horizontal", 3),
    Sketcher.Constraint("Vertical", 4),
    Sketcher.Constraint("Horizontal", 5),
    Sketcher.Constraint("Vertical", 6),
    Sketcher.Constraint("Horizontal", 7),
    Sketcher.Constraint("Vertical", 3, 2, 4, 2),
    Sketcher.Constraint("Vertical", 2, 2, 5, 2),
    Sketcher.Constraint("Equal", 2, 4),
    Sketcher.Constraint("DistanceX", 1, 2, 1, 1, 40.0),
    Sketcher.Constraint("DistanceX", -1, 1, 0, 2, 20.0),
    Sketcher.Constraint("DistanceY", -1, 1, 0, 2, 61.4),
    Sketcher.Constraint("DistanceY", 3, 2, 4, 2, 4.35),
    Sketcher.Constraint("DistanceY", 0, 2, 0, 1, 9.0424),
])
pocket12 = body.newObject("PartDesign::Pocket", "Pocket011")
pocket12.Profile = sketch17
pocket12.Length = 6
pocket12.Reversed = True

sketch18 = body.newObject("Sketcher::SketchObject", "Sketch017")
sketch18.AttachmentSupport = (doc.getObject("XY_Plane"), [""])
sketch18.MapMode = "FlatFace"
sketch18.addGeometry([
    Part.Circle(V(0, 79.3, 0), V(0, 0, 1), 2),
    Part.Circle(V(0, 65.9, 0), V(0, 0, 1), 2),
], False)
sketch18.addConstraint([
    Sketcher.Constraint("Equal", 0, 1),
    Sketcher.Constraint("PointOnObject", 0, 3, -2),
    Sketcher.Constraint("PointOnObject", 1, 3, -2),
    Sketcher.Constraint("Diameter", 0, 4.0),
    Sketcher.Constraint("DistanceY", -1, 1, 0, 3, 79.3136),
    Sketcher.Constraint("DistanceY", -1, 1, 1, 3, 65.9212),
])
pocket13 = body.newObject("PartDesign::Pocket", "Pocket012")
pocket13.Profile = sketch18
pocket13.Type = "ThroughAll"
pocket13.Reversed = True

sketch19 = body.newObject("Sketcher::SketchObject", "Sketch018")
sketch19.AttachmentSupport = (doc.getObject("XY_Plane"), [""])
sketch19.MapMode = "FlatFace"
sketch19.AttachmentOffset = App.Placement(V(0, 0, -6), App.Rotation())
sketch19.addGeometry(Part.Circle(V(0, 91, 0), V(0, 0, 1), 2.5), False)
sketch19.addConstraint([
    Sketcher.Constraint("PointOnObject", 0, 3, -2),
    Sketcher.Constraint("Diameter", 0, 5.0),
    Sketcher.Constraint("DistanceY", -1, 1, 0, 3, 90.9924),
])
pocket14 = body.newObject("PartDesign::Pocket", "Pocket013")
pocket14.Profile = sketch19
pocket14.Length = 9
pocket14.Reversed = True

sketch20 = body.newObject("Sketcher::SketchObject", "Sketch019")
sketch20.AttachmentSupport = (doc.getObject("XY_Plane"), [""])
sketch20.MapMode = "FlatFace"
sketch20.AttachmentOffset = App.Placement(V(0, 0, -6), App.Rotation())
add_polygon(sketch20, [(0, 0), (0, -20), (-20, -20), (-20, 0)])
sketch20.addConstraint([
    Sketcher.Constraint("Horizontal", 1),
    Sketcher.Constraint("Vertical", 2),
    Sketcher.Constraint("Horizontal", 3),
    Sketcher.Constraint("Coincident", 3, 2, -1, 1),
    Sketcher.Constraint("Equal", 3, 2),
    Sketcher.Constraint("DistanceX", 3, 1, 3, 2, 20.0),
    Sketcher.Constraint("DistanceX", 1, 2, 1, 1, 20.25),
])
pocket15 = body.newObject("PartDesign::Pocket", "Pocket014")
pocket15.Profile = sketch20
pocket15.Length = 10
pocket15.Reversed = True
doc.recompute()

fillet5 = body.newObject("PartDesign::Fillet", "Fillet004")
fillet5.Base = (pocket15, edges_at(pocket15, [(0.25, -20, -3), (0, 0, -3), (-20, 0, -3)]))
fillet5.Radius = 5

doc.recompute()
